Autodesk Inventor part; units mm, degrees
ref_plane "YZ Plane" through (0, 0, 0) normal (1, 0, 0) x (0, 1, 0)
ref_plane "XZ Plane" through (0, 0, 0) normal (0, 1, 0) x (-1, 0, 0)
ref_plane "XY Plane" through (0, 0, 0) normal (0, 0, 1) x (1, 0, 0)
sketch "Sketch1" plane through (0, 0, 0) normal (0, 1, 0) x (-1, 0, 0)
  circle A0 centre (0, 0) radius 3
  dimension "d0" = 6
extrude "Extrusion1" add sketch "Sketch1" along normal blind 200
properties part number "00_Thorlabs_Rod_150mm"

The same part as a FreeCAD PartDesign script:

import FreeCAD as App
import Part
import Sketcher

V = App.Vector

doc = App.newDocument("Part")
body = doc.addObject("PartDesign::Body", "Body")

# Sketch on XZ plane
sketch1 = body.newObject("Sketcher::SketchObject", "Sketch")
sketch1.AttachmentSupport = (doc.getObject("XZ_Plane"), [""])
sketch1.MapMode = "FlatFace"
sketch1.addGeometry(Part.Circle(V(0, 0, 0), V(0, 0, 1), 3), False)
sketch1.addConstraint([
    Sketcher.Constraint("Coincident", 0, 3, -1, 1),
    Sketcher.Constraint("Diameter", 0, 6.0),
])
pad1 = body.newObject("PartDesign::Pad", "Pad")
pad1.Profile = sketch1
pad1.Length = 200
pad1.Reversed = True

doc.recompute()
